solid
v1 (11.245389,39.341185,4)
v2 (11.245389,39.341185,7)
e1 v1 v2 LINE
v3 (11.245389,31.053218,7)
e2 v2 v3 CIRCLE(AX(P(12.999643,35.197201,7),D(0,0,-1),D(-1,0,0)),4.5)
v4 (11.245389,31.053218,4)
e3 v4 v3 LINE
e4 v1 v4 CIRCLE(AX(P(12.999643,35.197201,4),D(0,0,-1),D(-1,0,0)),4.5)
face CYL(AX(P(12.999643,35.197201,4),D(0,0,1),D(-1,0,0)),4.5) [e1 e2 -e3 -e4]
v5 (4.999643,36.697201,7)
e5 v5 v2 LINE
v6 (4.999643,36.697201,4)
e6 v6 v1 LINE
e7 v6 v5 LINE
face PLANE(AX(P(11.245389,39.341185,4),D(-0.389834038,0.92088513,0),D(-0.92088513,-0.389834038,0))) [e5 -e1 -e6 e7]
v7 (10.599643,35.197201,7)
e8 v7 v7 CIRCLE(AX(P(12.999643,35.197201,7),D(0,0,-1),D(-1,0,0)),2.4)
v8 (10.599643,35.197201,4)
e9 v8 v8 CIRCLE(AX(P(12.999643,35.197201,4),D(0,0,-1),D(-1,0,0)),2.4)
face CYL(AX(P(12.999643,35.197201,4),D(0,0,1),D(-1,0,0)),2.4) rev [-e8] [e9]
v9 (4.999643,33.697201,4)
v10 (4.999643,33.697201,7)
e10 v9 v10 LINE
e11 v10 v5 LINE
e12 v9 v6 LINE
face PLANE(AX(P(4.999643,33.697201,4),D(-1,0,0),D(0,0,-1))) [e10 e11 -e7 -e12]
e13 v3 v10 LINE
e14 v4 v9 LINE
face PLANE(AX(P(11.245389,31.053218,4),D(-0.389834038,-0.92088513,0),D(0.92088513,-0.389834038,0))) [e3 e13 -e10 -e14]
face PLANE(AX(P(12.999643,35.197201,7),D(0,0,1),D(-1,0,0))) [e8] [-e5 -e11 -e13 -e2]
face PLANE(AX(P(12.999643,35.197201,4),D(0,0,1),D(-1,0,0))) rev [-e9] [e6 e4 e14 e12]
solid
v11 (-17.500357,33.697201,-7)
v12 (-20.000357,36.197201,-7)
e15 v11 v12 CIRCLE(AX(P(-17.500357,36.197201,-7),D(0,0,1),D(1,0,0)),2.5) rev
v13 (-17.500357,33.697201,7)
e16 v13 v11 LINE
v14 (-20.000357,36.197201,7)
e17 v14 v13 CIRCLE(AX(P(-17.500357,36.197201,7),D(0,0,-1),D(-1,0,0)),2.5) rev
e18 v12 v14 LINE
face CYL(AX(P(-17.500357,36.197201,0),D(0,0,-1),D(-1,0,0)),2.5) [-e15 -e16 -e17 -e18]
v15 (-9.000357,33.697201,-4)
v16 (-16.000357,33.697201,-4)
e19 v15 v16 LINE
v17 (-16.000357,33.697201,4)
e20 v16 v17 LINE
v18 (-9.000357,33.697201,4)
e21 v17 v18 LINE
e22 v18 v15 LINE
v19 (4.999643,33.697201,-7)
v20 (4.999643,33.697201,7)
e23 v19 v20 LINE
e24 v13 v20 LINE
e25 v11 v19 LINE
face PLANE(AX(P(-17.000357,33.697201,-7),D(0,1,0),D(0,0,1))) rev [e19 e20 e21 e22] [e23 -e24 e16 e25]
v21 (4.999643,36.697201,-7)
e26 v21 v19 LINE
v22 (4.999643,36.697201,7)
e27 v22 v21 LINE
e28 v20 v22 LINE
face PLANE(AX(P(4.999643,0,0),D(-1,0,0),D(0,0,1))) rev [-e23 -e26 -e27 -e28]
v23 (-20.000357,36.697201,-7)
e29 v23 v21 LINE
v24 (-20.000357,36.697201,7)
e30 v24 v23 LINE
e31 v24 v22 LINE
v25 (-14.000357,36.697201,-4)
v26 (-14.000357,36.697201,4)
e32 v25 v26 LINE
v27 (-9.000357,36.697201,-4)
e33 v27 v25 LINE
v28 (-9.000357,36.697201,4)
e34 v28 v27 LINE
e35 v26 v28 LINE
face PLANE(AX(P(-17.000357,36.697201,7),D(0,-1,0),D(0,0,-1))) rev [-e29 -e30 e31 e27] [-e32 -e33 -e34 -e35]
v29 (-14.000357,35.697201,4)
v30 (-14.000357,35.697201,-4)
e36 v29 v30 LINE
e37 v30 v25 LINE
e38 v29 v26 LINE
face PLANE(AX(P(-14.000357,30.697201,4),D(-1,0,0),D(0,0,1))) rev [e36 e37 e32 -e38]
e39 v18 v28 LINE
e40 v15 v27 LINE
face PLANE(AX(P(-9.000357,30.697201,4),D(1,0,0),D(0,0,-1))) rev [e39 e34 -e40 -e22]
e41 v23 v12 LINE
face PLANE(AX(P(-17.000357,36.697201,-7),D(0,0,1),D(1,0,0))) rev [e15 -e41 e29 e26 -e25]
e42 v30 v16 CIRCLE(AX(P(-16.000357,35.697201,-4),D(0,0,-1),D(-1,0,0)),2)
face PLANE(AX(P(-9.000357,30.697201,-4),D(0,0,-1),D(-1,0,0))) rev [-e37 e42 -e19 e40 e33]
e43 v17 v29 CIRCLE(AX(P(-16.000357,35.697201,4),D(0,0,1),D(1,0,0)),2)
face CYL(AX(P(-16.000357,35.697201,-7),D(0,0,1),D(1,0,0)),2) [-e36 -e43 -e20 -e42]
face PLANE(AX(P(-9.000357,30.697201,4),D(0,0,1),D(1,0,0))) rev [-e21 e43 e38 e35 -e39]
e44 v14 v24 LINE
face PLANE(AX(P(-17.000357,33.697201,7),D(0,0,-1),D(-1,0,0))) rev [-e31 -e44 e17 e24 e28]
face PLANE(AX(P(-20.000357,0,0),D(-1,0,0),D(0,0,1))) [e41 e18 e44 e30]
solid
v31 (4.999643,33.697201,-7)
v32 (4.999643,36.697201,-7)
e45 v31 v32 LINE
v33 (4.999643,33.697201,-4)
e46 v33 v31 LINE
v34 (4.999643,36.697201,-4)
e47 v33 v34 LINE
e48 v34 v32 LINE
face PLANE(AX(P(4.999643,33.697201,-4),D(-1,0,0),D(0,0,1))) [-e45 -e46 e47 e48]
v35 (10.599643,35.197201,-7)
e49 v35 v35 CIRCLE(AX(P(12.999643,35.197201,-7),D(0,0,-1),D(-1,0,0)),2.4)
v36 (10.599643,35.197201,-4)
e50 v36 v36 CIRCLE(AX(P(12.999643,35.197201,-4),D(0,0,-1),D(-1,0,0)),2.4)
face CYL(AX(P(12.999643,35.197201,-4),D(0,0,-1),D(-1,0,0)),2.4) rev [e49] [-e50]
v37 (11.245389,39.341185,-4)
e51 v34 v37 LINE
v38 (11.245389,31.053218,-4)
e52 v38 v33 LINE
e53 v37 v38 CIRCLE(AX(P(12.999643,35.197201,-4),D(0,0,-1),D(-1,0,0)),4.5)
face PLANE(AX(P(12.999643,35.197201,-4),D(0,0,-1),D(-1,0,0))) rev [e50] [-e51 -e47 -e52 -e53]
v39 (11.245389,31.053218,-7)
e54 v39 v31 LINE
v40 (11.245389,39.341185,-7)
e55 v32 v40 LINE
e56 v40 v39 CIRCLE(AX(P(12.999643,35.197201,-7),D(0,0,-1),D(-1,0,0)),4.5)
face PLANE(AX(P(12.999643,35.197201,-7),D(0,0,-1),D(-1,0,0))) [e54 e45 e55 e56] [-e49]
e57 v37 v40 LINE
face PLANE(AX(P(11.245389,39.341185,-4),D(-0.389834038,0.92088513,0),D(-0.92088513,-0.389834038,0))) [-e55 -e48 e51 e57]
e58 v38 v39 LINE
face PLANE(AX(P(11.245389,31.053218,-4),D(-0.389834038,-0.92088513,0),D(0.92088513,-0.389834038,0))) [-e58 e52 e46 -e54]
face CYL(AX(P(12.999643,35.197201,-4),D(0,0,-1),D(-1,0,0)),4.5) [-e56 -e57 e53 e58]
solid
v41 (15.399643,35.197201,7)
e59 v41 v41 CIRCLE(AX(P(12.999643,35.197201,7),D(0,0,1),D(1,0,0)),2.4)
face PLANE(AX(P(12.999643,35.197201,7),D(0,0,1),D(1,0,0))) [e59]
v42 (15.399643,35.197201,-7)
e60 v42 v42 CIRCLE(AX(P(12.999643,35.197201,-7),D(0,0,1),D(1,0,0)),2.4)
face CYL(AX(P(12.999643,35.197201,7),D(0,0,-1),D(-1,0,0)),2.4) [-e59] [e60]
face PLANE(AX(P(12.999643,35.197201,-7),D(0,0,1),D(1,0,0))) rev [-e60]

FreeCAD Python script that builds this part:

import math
import FreeCAD as App
import Part
import Sketcher
from FreeCAD import Vector


def edges_at(feature, points):
    """Names of the edges that pass closest to the given points."""
    edges = feature.Shape.Edges
    near = lambda p: min(range(len(edges)), key=lambda i: edges[i].distToShape(Part.Vertex(*p))[0])
    return sorted({f"Edge{near(p) + 1}" for p in points})

doc = App.newDocument("Part")
body = doc.addObject("PartDesign::Body", "Body")

sketch1 = doc.addObject("Sketcher::SketchObject", "Sketch")
body.addObject(sketch1)
sketch1.AttachmentSupport = (doc.XY_Plane, [""])
sketch1.MapMode = "FlatFace"
sketch1.addGeometry(Part.Circle(Vector(13, 35.2, 0), Vector(0, 0, 1), 2.4), False)
sketch1.addConstraint([
    Sketcher.Constraint("Diameter", 0, 4.8),
    Sketcher.Constraint("DistanceY", -1, 1, 0, 3, 35.197201),
    Sketcher.Constraint("DistanceX", -1, 1, 0, 3, 12.999643),
])
pad1 = doc.addObject("PartDesign::Pad", "Pad")
body.addObject(pad1)
pad1.Profile = sketch1
pad1.Length = 14
pad1.Midplane = True
body2 = doc.addObject("PartDesign::Body", "Body001")

sketch2 = doc.addObject("Sketcher::SketchObject", "Sketch001")
body2.addObject(sketch2)
sketch2.AttachmentSupport = (doc.getObject("XY_Plane001"), [""])
sketch2.MapMode = "FlatFace"
sketch2.AttachmentOffset = App.Placement(Vector(0, 0, -7), App.Rotation())
sketch2.addGeometry([
    Part.LineSegment(Vector(5, 36.7, 0), Vector(11.2, 39.3, 0)),
    Part.ArcOfCircle(Part.Circle(Vector(13, 35.2, 0), Vector(0, 0, 1), 4.5), math.radians(-113), math.radians(113)),
    Part.LineSegment(Vector(11.2, 31.1, 0), Vector(5, 33.7, 0)),
    Part.LineSegment(Vector(5, 33.7, 0), Vector(5, 36.7, 0)),
    Part.Circle(Vector(13, 35.2, 0), Vector(0, 0, 1), 2.4),
], False)
sketch2.addConstraint([
    Sketcher.Constraint("Tangent", 0, 2, 1, 2),
    Sketcher.Constraint("Tangent", 1, 1, 2, 1),
    Sketcher.Constraint("Coincident", 2, 2, 3, 1),
    Sketcher.Constraint("Coincident", 3, 2, 0, 1),
    Sketcher.Constraint("Vertical", 3),
    Sketcher.Constraint("Coincident", 4, 3, 1, 3),
    Sketcher.Constraint("Vertical", 0, 2, 1, 1),
    Sketcher.Constraint("Diameter", 4, 4.8),
    Sketcher.Constraint("Radius", 1, 4.5),
    Sketcher.Constraint("DistanceY", 3, 1, 3, 2, 3.0),
    Sketcher.Constraint("DistanceX", 2, 2, 1, 3, 8.0),
    Sketcher.Constraint("DistanceY", -1, 1, 1, 3, 35.197201),
    Sketcher.Constraint("DistanceX", -1, 1, 0, 2, 11.245389),
])
pad2 = doc.addObject("PartDesign::Pad", "Pad001")
body2.addObject(pad2)
pad2.Profile = sketch2
pad2.Length = 3
body3 = doc.addObject("PartDesign::Body", "Body002")
doc.recompute()

mirroring = doc.addObject("Part::Mirroring", "Mirroring")
mirroring.Source = body2
mirroring.Base = Vector(0, 0, 0)
mirroring.Normal = Vector(0, 0, 1)
body3.BaseFeature = mirroring
doc.recompute()
body4 = doc.addObject("PartDesign::Body", "Body003")

sketch3 = doc.addObject("Sketcher::SketchObject", "Sketch002")
body4.addObject(sketch3)
sketch3.AttachmentSupport = (doc.getObject("YZ_Plane003"), [""])
sketch3.MapMode = "FlatFace"
sketch3.AttachmentOffset = App.Placement(Vector(0, 0, 4.999643), App.Rotation())
sketch3.addGeometry([
    Part.LineSegment(Vector(36.7, -7, 0), Vector(33.7, -7, 0)),
    Part.LineSegment(Vector(33.7, -7, 0), Vector(33.7, 7, 0)),
    Part.LineSegment(Vector(33.7, 7, 0), Vector(36.7, 7, 0)),
    Part.LineSegment(Vector(36.7, 7, 0), Vector(36.7, -7, 0)),
], False)
sketch3.addConstraint([
    Sketcher.Constraint("Coincident", 0, 2, 1, 1),
    Sketcher.Constraint("Coincident", 1, 2, 2, 1),
    Sketcher.Constraint("Coincident", 2, 2, 3, 1),
    Sketcher.Constraint("Coincident", 3, 2, 0, 1),
    Sketcher.Constraint("Horizontal", 0),
    Sketcher.Constraint("Vertical", 1),
    Sketcher.Constraint("Horizontal", 2),
    Sketcher.Constraint("Vertical", 3),
    Sketcher.Constraint("DistanceX", 0, 2, 0, 1, 3.0),
    Sketcher.Constraint("DistanceY", 1, 1, 1, 2, 14.0),
    Sketcher.Constraint("DistanceY", 0, 2, -1, 1, 7.0),
    Sketcher.Constraint("DistanceX", -1, 1, 0, 2, 33.697201),
])
pad3 = doc.addObject("PartDesign::Pad", "Pad002")
body4.addObject(pad3)
pad3.Profile = sketch3
pad3.Length = 22
pad3.Reversed = True

sketch4 = doc.addObject("Sketcher::SketchObject", "Sketch003")
body4.addObject(sketch4)
sketch4.AttachmentSupport = (doc.getObject("XZ_Plane003"), [""])
sketch4.MapMode = "FlatFace"
sketch4.AttachmentOffset = App.Placement(Vector(0, 0, -36.697201), App.Rotation())
sketch4.addGeometry([
    Part.LineSegment(Vector(-14, -4, 0), Vector(-14, 4, 0)),
    Part.LineSegment(Vector(-14, 4, 0), Vector(-9, 4, 0)),
    Part.LineSegment(Vector(-9, 4, 0), Vector(-9, -4, 0)),
    Part.LineSegment(Vector(-9, -4, 0), Vector(-14, -4, 0)),
], False)
sketch4.addConstraint([
    Sketcher.Constraint("Coincident", 0, 2, 1, 1),
    Sketcher.Constraint("Coincident", 1, 2, 2, 1),
    Sketcher.Constraint("Coincident", 2, 2, 3, 1),
    Sketcher.Constraint("Coincident", 3, 2, 0, 1),
    Sketcher.Constraint("Vertical", 0),
    Sketcher.Constraint("Horizontal", 1),
    Sketcher.Constraint("Vertical", 2),
    Sketcher.Constraint("Horizontal", 3),
    Sketcher.Constraint("DistanceX", 1, 1, 1, 2, 5.0),
    Sketcher.Constraint("DistanceY", 0, 1, 0, 2, 8.0),
    Sketcher.Constraint("DistanceY", -1, 1, 0, 2, 4.0),
    Sketcher.Constraint("DistanceX", 0, 2, -1, 1, 14.000357),
])
pocket1 = doc.addObject("PartDesign::Pocket", "Pocket")
body4.addObject(pocket1)
pocket1.Profile = sketch4
pocket1.Type = "ThroughAll"
pocket1.Reversed = True
doc.recompute()

fillet = doc.addObject("PartDesign::Fillet", "Fillet")
body4.addObject(fillet)
fillet.Base = (pocket1, edges_at(pocket1, [(-14, 33.697, 0)]))
fillet.Radius = 2

sketch5 = doc.addObject("Sketcher::SketchObject", "Sketch004")
body4.addObject(sketch5)
sketch5.AttachmentSupport = (doc.getObject("YZ_Plane003"), [""])
sketch5.MapMode = "FlatFace"
sketch5.AttachmentOffset = App.Placement(Vector(0, 0, -17.000357), App.Rotation())
sketch5.addGeometry([
    Part.LineSegment(Vector(36.7, -7, 0), Vector(33.7, -7, 0)),
    Part.LineSegment(Vector(33.7, -7, 0), Vector(33.7, 7, 0)),
    Part.LineSegment(Vector(33.7, 7, 0), Vector(36.7, 7, 0)),
    Part.LineSegment(Vector(36.7, 7, 0), Vector(36.7, -7, 0)),
], False)
sketch5.addConstraint([
    Sketcher.Constraint("Coincident", 0, 2, 1, 1),
    Sketcher.Constraint("Coincident", 1, 2, 2, 1),
    Sketcher.Constraint("Coincident", 2, 2, 3, 1),
    Sketcher.Constraint("Coincident", 3, 2, 0, 1),
    Sketcher.Constraint("Horizontal", 0),
    Sketcher.Constraint("Vertical", 1),
    Sketcher.Constraint("Horizontal", 2),
    Sketcher.Constraint("Vertical", 3),
    Sketcher.Constraint("DistanceX", 0, 2, 0, 1, 3.0),
    Sketcher.Constraint("DistanceY", 1, 1, 1, 2, 14.0),
    Sketcher.Constraint("DistanceY", 0, 2, -1, 1, 7.0),
    Sketcher.Constraint("DistanceX", -1, 1, 0, 2, 33.697201),
])
pad4 = doc.addObject("PartDesign::Pad", "Pad003")
body4.addObject(pad4)
pad4.Profile = sketch5
pad4.Length = 3
pad4.Reversed = True
doc.recompute()

fillet2 = doc.addObject("PartDesign::Fillet", "Fillet001")
body4.addObject(fillet2)
fillet2.Base = (pad4, edges_at(pad4, [(-20, 33.697, 0)]))
fillet2.Radius = 2.5
mirroring.Visibility = False

doc.recompute()
